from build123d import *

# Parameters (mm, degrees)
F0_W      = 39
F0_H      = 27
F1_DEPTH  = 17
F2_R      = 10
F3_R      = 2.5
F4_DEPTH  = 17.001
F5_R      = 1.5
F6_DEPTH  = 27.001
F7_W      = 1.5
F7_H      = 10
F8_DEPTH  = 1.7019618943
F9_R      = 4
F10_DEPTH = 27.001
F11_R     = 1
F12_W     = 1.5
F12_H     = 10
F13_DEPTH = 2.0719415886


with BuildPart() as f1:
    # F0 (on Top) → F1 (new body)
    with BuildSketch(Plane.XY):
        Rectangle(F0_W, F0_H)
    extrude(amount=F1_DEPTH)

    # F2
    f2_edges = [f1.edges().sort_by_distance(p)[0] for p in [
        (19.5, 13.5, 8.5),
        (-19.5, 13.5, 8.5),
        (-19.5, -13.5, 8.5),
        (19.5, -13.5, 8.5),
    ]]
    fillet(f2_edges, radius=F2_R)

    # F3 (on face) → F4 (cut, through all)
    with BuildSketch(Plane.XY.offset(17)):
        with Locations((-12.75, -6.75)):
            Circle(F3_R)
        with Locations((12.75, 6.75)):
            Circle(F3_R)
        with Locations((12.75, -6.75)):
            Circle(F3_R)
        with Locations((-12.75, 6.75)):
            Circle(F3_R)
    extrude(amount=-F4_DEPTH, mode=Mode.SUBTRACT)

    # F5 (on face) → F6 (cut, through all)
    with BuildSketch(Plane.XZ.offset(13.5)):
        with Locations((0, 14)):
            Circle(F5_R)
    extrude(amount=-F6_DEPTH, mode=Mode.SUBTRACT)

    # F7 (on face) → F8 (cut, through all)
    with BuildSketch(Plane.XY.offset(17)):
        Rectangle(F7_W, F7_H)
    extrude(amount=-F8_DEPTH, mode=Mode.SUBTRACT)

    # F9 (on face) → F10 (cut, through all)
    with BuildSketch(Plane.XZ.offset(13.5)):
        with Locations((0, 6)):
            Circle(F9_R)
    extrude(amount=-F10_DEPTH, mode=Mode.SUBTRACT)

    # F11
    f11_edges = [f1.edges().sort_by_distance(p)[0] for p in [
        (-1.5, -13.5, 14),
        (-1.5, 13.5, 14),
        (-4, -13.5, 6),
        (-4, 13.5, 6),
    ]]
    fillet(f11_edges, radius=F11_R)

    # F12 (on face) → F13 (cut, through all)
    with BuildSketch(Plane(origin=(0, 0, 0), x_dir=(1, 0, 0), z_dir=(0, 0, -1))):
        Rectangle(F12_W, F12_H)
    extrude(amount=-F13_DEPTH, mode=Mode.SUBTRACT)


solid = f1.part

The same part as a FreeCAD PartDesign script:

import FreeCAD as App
import Part
import Sketcher

V = App.Vector
Q = App.Units.Quantity


def edges_at(feature, points):
    """Names of the edges that pass closest to the given points."""
    edges = feature.Shape.Edges
    near = lambda p: min(range(len(edges)), key=lambda i: edges[i].distToShape(Part.Vertex(*p))[0])
    return sorted({f"Edge{near(p) + 1}" for p in points})


def add_polygon(sketch, points):
    """Adds a closed chain of lines whose ends are joined by coincident constraints."""
    first, n = sketch.GeometryCount, len(points)
    for a, b in zip(points, points[1:] + points[:1]):
        sketch.addGeometry(Part.LineSegment(App.Vector(*a, 0), App.Vector(*b, 0)), False)
    for i in range(n):
        sketch.addConstraint(Sketcher.Constraint("Coincident", first + i, 2, first + (i + 1) % n, 1))

doc = App.newDocument("Part")
body = doc.addObject("PartDesign::Body", "Body")

sketch1 = body.newObject("Sketcher::SketchObject", "Sketch")
sketch1.AttachmentSupport = (doc.getObject("XY_Plane"), [""])
sketch1.MapMode = "FlatFace"
add_polygon(sketch1, [(-20, 14), (-20, -14), (20, -14), (20, 14)])
sketch1.addConstraint(Sketcher.Constraint("Vertical", 0))
sketch1.addConstraint(Sketcher.Constraint("Horizontal", 1))
sketch1.addConstraint(Sketcher.Constraint("Vertical", 2))
sketch1.addConstraint(Sketcher.Constraint("Horizontal", 3))
sketch1.addConstraint(Sketcher.Constraint("Symmetric", 0, 2, 2, 2, -1, 1))
sketch1.addConstraint(Sketcher.Constraint("DistanceX", 1, 1, 1, 2, Q("39 mm")))
sketch1.addConstraint(Sketcher.Constraint("DistanceY", 0, 2, 0, 1, Q("27 mm")))
pad1 = body.newObject("PartDesign::Pad", "Pad")
pad1.Profile = sketch1
pad1.Length = 17
doc.recompute()

fillet = body.newObject("PartDesign::Fillet", "Fillet")
fillet.Base = (pad1, edges_at(pad1, [
    (19.5, 13.5, 8.5),
    (-19.5, 13.5, 8.5),
    (-19.5, -13.5, 8.5),
    (19.5, -13.5, 8.5),
]))
fillet.Radius = 10

sketch2 = body.newObject("Sketcher::SketchObject", "Sketch001")
sketch2.AttachmentSupport = (doc.getObject("XY_Plane"), [""])
sketch2.MapMode = "FlatFace"
sketch2.AttachmentOffset = App.Placement(V(0, 0, 17), App.Rotation())
sketch2.addGeometry(Part.Circle(V(-12.8, -6.8, 0), V(0, 0, 1), 2.5), False)
sketch2.addGeometry(Part.Circle(V(12.8, 6.8, 0), V(0, 0, 1), 2.5), False)
sketch2.addGeometry(Part.Circle(V(12.8, -6.8, 0), V(0, 0, 1), 2.5), False)
sketch2.addGeometry(Part.Circle(V(-12.8, 6.8, 0), V(0, 0, 1), 2.5), False)
sketch2.addConstraint(Sketcher.Constraint("Equal", 0, 1))
sketch2.addConstraint(Sketcher.Constraint("Equal", 1, 2))
sketch2.addConstraint(Sketcher.Constraint("Equal", 2, 3))
sketch2.addConstraint(Sketcher.Constraint("Symmetric", 0, 3, 1, 3, -1, 1))
sketch2.addConstraint(Sketcher.Constraint("Symmetric", 2, 3, 3, 3, -1, 1))
sketch2.addConstraint(Sketcher.Constraint("Symmetric", 0, 3, 2, 3, -2))
sketch2.addConstraint(Sketcher.Constraint("Diameter", 0, Q("5 mm")))
sketch2.addConstraint(Sketcher.Constraint("DistanceX", 0, 3, 1, 3, Q("25.5 mm")))
sketch2.addConstraint(Sketcher.Constraint("DistanceY", 0, 3, 1, 3, Q("13.5 mm")))
pocket1 = body.newObject("PartDesign::Pocket", "Pocket")
pocket1.Profile = sketch2
pocket1.Type = "ThroughAll"

sketch3 = body.newObject("Sketcher::SketchObject", "Sketch002")
sketch3.AttachmentSupport = (doc.getObject("XZ_Plane"), [""])
sketch3.MapMode = "FlatFace"
sketch3.AttachmentOffset = App.Placement(V(0, 0, 13.5), App.Rotation())
sketch3.addGeometry(Part.Circle(V(0, 14, 0), V(0, 0, 1), 1.5), False)
sketch3.addConstraint(Sketcher.Constraint("PointOnObject", 0, 3, -2))
sketch3.addConstraint(Sketcher.Constraint("Diameter", 0, Q("3 mm")))
sketch3.addConstraint(Sketcher.Constraint("DistanceY", -1, 1, 0, 3, Q("14 mm")))
pocket2 = body.newObject("PartDesign::Pocket", "Pocket001")
pocket2.Profile = sketch3
pocket2.Type = "ThroughAll"

sketch4 = body.newObject("Sketcher::SketchObject", "Sketch003")
sketch4.AttachmentSupport = (doc.getObject("XY_Plane"), [""])
sketch4.MapMode = "FlatFace"
sketch4.AttachmentOffset = App.Placement(V(0, 0, 17), App.Rotation())
add_polygon(sketch4, [(-0.8, 5), (-0.8, -5), (0.8, -5), (0.8, 5)])
sketch4.addConstraint(Sketcher.Constraint("Vertical", 0))
sketch4.addConstraint(Sketcher.Constraint("Horizontal", 1))
sketch4.addConstraint(Sketcher.Constraint("Vertical", 2))
sketch4.addConstraint(Sketcher.Constraint("Horizontal", 3))
sketch4.addConstraint(Sketcher.Constraint("Symmetric", 0, 2, 2, 2, -1, 1))
sketch4.addConstraint(Sketcher.Constraint("DistanceY", 0, 2, 0, 1, Q("10 mm")))
sketch4.addConstraint(Sketcher.Constraint("DistanceX", 1, 1, 1, 2, Q("1.5 mm")))
pocket3 = body.newObject("PartDesign::Pocket", "Pocket002")
pocket3.Profile = sketch4
pocket3.Length = 1.701962

sketch5 = body.newObject("Sketcher::SketchObject", "Sketch004")
sketch5.AttachmentSupport = (doc.getObject("XZ_Plane"), [""])
sketch5.MapMode = "FlatFace"
sketch5.AttachmentOffset = App.Placement(V(0, 0, 13.5), App.Rotation())
sketch5.addGeometry(Part.Circle(V(0, 6, 0), V(0, 0, 1), 4), False)
sketch5.addConstraint(Sketcher.Constraint("PointOnObject", 0, 3, -2))
sketch5.addConstraint(Sketcher.Constraint("Diameter", 0, Q("8 mm")))
sketch5.addConstraint(Sketcher.Constraint("DistanceY", -1, 1, 0, 3, Q("6 mm")))
pocket4 = body.newObject("PartDesign::Pocket", "Pocket003")
pocket4.Profile = sketch5
pocket4.Type = "ThroughAll"
doc.recompute()

fillet2 = body.newObject("PartDesign::Fillet", "Fillet001")
fillet2.Base = (pocket4, edges_at(pocket4, [
    (-1.5, -13.5, 14),
    (-1.5, 13.5, 14),
    (-4, -13.5, 6),
    (-4, 13.5, 6),
]))
fillet2.Radius = 1

sketch6 = body.newObject("Sketcher::SketchObject", "Sketch005")
sketch6.AttachmentSupport = (doc.getObject("XY_Plane"), [""])
sketch6.MapMode = "FlatFace"
add_polygon(sketch6, [(-0.8, -5), (-0.8, 5), (0.8, 5), (0.8, -5)])
sketch6.addConstraint(Sketcher.Constraint("Vertical", 0))
sketch6.addConstraint(Sketcher.Constraint("Horizontal", 1))
sketch6.addConstraint(Sketcher.Constraint("Vertical", 2))
sketch6.addConstraint(Sketcher.Constraint("Horizontal", 3))
sketch6.addConstraint(Sketcher.Constraint("Symmetric", 0, 2, 2, 2, -1, 1))
sketch6.addConstraint(Sketcher.Constraint("DistanceY", 0, 1, 0, 2, Q("10 mm")))
sketch6.addConstraint(Sketcher.Constraint("DistanceX", 1, 1, 1, 2, Q("1.5 mm")))
pocket5 = body.newObject("PartDesign::Pocket", "Pocket004")
pocket5.Profile = sketch6
pocket5.Length = 2.071942
pocket5.Reversed = True

doc.recompute()
